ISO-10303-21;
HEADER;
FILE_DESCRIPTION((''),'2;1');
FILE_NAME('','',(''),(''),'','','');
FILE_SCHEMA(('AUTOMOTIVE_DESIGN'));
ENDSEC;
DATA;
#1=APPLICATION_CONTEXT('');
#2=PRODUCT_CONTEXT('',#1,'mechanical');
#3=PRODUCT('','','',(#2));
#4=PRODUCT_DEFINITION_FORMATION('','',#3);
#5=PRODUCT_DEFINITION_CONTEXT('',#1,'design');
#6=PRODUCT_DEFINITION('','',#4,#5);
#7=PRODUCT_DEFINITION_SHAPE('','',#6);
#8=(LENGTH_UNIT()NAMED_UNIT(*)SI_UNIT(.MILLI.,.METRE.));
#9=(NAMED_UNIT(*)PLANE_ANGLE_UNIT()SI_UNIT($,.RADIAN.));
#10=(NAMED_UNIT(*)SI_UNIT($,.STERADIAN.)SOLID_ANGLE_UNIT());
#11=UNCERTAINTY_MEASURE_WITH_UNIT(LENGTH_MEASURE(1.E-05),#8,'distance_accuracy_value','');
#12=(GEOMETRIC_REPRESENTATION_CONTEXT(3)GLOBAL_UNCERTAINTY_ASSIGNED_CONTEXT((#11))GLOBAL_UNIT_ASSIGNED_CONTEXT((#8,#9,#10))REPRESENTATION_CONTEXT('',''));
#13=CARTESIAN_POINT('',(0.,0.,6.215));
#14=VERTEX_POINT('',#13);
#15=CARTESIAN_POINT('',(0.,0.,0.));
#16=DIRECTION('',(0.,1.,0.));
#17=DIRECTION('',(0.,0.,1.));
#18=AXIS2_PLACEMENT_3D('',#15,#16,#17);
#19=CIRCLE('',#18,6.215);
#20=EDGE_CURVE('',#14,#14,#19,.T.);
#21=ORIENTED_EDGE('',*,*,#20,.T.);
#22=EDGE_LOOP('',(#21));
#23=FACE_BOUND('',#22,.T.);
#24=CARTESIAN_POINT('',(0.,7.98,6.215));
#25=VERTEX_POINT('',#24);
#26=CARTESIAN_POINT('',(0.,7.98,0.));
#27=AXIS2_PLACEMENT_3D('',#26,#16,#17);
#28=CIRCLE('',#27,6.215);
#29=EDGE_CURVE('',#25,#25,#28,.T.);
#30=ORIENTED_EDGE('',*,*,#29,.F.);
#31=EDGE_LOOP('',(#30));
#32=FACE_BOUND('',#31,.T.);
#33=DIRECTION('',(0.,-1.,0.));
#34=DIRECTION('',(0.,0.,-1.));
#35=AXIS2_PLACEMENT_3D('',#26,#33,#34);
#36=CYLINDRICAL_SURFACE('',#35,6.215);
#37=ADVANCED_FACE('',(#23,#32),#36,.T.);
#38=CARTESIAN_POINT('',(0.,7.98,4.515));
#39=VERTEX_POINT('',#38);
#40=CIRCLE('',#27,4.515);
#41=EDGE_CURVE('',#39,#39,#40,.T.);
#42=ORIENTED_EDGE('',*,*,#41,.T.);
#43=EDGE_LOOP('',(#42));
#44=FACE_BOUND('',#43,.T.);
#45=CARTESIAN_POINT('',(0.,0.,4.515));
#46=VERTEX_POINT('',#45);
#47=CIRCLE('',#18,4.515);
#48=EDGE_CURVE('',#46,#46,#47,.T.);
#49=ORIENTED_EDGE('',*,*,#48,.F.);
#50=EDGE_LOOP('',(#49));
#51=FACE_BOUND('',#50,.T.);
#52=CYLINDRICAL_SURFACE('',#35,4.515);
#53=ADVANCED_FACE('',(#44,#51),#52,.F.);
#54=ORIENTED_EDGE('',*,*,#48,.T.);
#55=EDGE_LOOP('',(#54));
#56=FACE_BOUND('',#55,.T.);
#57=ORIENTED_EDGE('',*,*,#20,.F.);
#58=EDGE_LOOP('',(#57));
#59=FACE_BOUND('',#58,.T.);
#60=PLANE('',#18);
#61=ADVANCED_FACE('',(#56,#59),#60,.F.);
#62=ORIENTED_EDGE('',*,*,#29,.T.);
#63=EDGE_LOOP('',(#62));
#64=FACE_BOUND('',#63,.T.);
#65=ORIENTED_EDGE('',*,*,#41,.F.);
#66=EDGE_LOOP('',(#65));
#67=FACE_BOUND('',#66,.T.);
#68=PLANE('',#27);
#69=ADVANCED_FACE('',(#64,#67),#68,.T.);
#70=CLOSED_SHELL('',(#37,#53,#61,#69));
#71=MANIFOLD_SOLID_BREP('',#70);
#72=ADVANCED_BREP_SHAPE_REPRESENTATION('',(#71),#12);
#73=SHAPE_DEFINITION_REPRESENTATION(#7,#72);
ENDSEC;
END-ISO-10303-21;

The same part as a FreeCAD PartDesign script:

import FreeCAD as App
import Part
import Sketcher
from FreeCAD import Vector

doc = App.newDocument("Part")
body = doc.addObject("PartDesign::Body", "Body")

# Sketch on XZ plane
sketch1 = body.newObject("Sketcher::SketchObject", "Sketch")
sketch1.AttachmentSupport = (doc.getObject("XZ_Plane"), [""])
sketch1.MapMode = "FlatFace"
sketch1.addGeometry([
    Part.Circle(Vector(0, 0, 0), Vector(0, 0, 1), 6.2),
    Part.Circle(Vector(0, 0, 0), Vector(0, 0, 1), 4.5),
], False)
sketch1.addConstraint([
    Sketcher.Constraint("Coincident", 0, 3, -1, 1),
    Sketcher.Constraint("Coincident", 1, 3, -1, 1),
    Sketcher.Constraint("Diameter", 0, 12.43),
    Sketcher.Constraint("Diameter", 1, 9.03),
])
pad1 = body.newObject("PartDesign::Pad", "Pad")
pad1.Profile = sketch1
pad1.Length = 7.98
pad1.Reversed = True

doc.recompute()
